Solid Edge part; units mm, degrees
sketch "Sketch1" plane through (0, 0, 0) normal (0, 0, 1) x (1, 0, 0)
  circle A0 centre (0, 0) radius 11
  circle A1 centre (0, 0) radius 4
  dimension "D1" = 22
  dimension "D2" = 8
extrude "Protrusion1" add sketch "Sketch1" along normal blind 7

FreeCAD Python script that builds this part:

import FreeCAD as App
import Part
import Sketcher
from FreeCAD import Vector

doc = App.newDocument("Part")
body = doc.addObject("PartDesign::Body", "Body")

# Sketch on XY plane
sketch1 = body.newObject("Sketcher::SketchObject", "Sketch")
sketch1.AttachmentSupport = (doc.getObject("XY_Plane"), [""])
sketch1.MapMode = "FlatFace"
sketch1.addGeometry([
    Part.Circle(Vector(0, 0, 0), Vector(0, 0, 1), 11),
    Part.Circle(Vector(0, 0, 0), Vector(0, 0, 1), 4),
], False)
sketch1.addConstraint([
    Sketcher.Constraint("Coincident", 0, 3, -1, 1),
    Sketcher.Constraint("Coincident", 1, 3, -1, 1),
    Sketcher.Constraint("Diameter", 0, 22.0),
    Sketcher.Constraint("Diameter", 1, 8.0),
])
pad1 = body.newObject("PartDesign::Pad", "Pad")
pad1.Profile = sketch1
pad1.Length = 7

doc.recompute()
